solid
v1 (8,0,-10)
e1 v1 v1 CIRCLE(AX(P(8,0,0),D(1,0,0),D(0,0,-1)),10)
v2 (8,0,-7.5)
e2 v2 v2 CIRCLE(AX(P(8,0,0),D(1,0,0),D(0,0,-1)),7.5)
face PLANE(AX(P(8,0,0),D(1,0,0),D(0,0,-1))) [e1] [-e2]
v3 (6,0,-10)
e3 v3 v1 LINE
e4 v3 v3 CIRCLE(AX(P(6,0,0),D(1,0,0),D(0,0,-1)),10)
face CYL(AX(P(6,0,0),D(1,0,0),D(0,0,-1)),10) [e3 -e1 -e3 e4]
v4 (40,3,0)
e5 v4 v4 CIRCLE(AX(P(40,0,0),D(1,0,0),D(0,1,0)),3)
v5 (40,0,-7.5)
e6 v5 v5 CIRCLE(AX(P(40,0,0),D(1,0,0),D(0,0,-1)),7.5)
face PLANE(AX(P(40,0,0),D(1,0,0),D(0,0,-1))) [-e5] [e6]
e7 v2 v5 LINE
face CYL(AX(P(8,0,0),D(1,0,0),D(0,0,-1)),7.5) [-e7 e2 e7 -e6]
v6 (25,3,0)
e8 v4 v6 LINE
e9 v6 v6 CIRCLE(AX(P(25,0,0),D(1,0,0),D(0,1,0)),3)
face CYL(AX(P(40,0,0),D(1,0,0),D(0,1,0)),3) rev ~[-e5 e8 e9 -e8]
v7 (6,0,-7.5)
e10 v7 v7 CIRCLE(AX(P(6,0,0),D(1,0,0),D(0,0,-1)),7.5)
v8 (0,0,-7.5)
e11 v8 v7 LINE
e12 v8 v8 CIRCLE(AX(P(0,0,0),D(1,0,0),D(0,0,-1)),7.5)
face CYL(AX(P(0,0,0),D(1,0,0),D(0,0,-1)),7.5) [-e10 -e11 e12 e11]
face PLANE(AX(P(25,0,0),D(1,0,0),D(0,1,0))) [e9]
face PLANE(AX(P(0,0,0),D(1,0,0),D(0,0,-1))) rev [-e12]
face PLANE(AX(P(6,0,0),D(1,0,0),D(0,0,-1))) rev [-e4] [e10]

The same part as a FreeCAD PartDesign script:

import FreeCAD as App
import Part
import Sketcher
Q = App.Units.Quantity

doc = App.newDocument("Part")
body = doc.addObject("PartDesign::Body", "Body")

sketch1 = body.newObject("Sketcher::SketchObject", "Sketch")
sketch1.AttachmentSupport = (doc.getObject("XZ_Plane"), [""])
sketch1.MapMode = "FlatFace"
sketch1.addGeometry([
    Part.LineSegment(App.Vector(40, 0, 0), App.Vector(0, 0, 0)),
    Part.LineSegment(App.Vector(0, 0, 0), App.Vector(0, -7.5, 0)),
    Part.LineSegment(App.Vector(0, -7.5, 0), App.Vector(6, -7.5, 0)),
    Part.LineSegment(App.Vector(6, -7.5, 0), App.Vector(6, -10, 0)),
    Part.LineSegment(App.Vector(6, -10, 0), App.Vector(8, -10, 0)),
    Part.LineSegment(App.Vector(8, -10, 0), App.Vector(8, -7.5, 0)),
    Part.LineSegment(App.Vector(8, -7.5, 0), App.Vector(40, -7.5, 0)),
    Part.LineSegment(App.Vector(40, -7.5, 0), App.Vector(40, 0, 0)),
], False)
sketch1.addConstraint([
    Sketcher.Constraint("Coincident", 0, 2, 1, 1),
    Sketcher.Constraint("Coincident", 1, 2, 2, 1),
    Sketcher.Constraint("Coincident", 2, 2, 3, 1),
    Sketcher.Constraint("Coincident", 3, 2, 4, 1),
    Sketcher.Constraint("Coincident", 4, 2, 5, 1),
    Sketcher.Constraint("Coincident", 5, 2, 6, 1),
    Sketcher.Constraint("Coincident", 6, 2, 7, 1),
    Sketcher.Constraint("Coincident", 7, 2, 0, 1),
    Sketcher.Constraint("Horizontal", 0),
    Sketcher.Constraint("Vertical", 1),
    Sketcher.Constraint("Horizontal", 2),
    Sketcher.Constraint("Vertical", 3),
    Sketcher.Constraint("Horizontal", 4),
    Sketcher.Constraint("Vertical", 5),
    Sketcher.Constraint("Horizontal", 6),
    Sketcher.Constraint("Vertical", 7),
    Sketcher.Constraint("Coincident", 0, 2, -1, 1),
    Sketcher.Constraint("Horizontal", 2, 2, 5, 2),
    Sketcher.Constraint("DistanceX", 0, 2, 0, 1, Q("40 mm")),
    Sketcher.Constraint("DistanceX", 2, 1, 2, 2, Q("6 mm")),
    Sketcher.Constraint("DistanceX", 4, 1, 4, 2, Q("2 mm")),
    Sketcher.Constraint("DistanceY", 1, 2, 1, 1, Q("7.5 mm")),
    Sketcher.Constraint("DistanceY", 3, 2, 3, 1, Q("2.5 mm")),
])
revolution = body.newObject("PartDesign::Revolution", "Revolution")
revolution.Profile = sketch1
revolution.ReferenceAxis = (sketch1, ["H_Axis"])
revolution.Angle = 360

sketch2 = body.newObject("Sketcher::SketchObject", "Sketch001")
sketch2.AttachmentSupport = (doc.getObject("YZ_Plane"), [""])
sketch2.MapMode = "FlatFace"
sketch2.AttachmentOffset = App.Placement(App.Vector(0, 0, 40), App.Rotation())
sketch2.addGeometry(Part.Circle(App.Vector(0, 0, 0), App.Vector(0, 0, 1), 3), False)
sketch2.addConstraint([
    Sketcher.Constraint("Coincident", 0, 3, -1, 1),
    Sketcher.Constraint("Diameter", 0, Q("6 mm")),
])
pocket1 = body.newObject("PartDesign::Pocket", "Pocket")
pocket1.Profile = sketch2
pocket1.Length = 15

doc.recompute()
